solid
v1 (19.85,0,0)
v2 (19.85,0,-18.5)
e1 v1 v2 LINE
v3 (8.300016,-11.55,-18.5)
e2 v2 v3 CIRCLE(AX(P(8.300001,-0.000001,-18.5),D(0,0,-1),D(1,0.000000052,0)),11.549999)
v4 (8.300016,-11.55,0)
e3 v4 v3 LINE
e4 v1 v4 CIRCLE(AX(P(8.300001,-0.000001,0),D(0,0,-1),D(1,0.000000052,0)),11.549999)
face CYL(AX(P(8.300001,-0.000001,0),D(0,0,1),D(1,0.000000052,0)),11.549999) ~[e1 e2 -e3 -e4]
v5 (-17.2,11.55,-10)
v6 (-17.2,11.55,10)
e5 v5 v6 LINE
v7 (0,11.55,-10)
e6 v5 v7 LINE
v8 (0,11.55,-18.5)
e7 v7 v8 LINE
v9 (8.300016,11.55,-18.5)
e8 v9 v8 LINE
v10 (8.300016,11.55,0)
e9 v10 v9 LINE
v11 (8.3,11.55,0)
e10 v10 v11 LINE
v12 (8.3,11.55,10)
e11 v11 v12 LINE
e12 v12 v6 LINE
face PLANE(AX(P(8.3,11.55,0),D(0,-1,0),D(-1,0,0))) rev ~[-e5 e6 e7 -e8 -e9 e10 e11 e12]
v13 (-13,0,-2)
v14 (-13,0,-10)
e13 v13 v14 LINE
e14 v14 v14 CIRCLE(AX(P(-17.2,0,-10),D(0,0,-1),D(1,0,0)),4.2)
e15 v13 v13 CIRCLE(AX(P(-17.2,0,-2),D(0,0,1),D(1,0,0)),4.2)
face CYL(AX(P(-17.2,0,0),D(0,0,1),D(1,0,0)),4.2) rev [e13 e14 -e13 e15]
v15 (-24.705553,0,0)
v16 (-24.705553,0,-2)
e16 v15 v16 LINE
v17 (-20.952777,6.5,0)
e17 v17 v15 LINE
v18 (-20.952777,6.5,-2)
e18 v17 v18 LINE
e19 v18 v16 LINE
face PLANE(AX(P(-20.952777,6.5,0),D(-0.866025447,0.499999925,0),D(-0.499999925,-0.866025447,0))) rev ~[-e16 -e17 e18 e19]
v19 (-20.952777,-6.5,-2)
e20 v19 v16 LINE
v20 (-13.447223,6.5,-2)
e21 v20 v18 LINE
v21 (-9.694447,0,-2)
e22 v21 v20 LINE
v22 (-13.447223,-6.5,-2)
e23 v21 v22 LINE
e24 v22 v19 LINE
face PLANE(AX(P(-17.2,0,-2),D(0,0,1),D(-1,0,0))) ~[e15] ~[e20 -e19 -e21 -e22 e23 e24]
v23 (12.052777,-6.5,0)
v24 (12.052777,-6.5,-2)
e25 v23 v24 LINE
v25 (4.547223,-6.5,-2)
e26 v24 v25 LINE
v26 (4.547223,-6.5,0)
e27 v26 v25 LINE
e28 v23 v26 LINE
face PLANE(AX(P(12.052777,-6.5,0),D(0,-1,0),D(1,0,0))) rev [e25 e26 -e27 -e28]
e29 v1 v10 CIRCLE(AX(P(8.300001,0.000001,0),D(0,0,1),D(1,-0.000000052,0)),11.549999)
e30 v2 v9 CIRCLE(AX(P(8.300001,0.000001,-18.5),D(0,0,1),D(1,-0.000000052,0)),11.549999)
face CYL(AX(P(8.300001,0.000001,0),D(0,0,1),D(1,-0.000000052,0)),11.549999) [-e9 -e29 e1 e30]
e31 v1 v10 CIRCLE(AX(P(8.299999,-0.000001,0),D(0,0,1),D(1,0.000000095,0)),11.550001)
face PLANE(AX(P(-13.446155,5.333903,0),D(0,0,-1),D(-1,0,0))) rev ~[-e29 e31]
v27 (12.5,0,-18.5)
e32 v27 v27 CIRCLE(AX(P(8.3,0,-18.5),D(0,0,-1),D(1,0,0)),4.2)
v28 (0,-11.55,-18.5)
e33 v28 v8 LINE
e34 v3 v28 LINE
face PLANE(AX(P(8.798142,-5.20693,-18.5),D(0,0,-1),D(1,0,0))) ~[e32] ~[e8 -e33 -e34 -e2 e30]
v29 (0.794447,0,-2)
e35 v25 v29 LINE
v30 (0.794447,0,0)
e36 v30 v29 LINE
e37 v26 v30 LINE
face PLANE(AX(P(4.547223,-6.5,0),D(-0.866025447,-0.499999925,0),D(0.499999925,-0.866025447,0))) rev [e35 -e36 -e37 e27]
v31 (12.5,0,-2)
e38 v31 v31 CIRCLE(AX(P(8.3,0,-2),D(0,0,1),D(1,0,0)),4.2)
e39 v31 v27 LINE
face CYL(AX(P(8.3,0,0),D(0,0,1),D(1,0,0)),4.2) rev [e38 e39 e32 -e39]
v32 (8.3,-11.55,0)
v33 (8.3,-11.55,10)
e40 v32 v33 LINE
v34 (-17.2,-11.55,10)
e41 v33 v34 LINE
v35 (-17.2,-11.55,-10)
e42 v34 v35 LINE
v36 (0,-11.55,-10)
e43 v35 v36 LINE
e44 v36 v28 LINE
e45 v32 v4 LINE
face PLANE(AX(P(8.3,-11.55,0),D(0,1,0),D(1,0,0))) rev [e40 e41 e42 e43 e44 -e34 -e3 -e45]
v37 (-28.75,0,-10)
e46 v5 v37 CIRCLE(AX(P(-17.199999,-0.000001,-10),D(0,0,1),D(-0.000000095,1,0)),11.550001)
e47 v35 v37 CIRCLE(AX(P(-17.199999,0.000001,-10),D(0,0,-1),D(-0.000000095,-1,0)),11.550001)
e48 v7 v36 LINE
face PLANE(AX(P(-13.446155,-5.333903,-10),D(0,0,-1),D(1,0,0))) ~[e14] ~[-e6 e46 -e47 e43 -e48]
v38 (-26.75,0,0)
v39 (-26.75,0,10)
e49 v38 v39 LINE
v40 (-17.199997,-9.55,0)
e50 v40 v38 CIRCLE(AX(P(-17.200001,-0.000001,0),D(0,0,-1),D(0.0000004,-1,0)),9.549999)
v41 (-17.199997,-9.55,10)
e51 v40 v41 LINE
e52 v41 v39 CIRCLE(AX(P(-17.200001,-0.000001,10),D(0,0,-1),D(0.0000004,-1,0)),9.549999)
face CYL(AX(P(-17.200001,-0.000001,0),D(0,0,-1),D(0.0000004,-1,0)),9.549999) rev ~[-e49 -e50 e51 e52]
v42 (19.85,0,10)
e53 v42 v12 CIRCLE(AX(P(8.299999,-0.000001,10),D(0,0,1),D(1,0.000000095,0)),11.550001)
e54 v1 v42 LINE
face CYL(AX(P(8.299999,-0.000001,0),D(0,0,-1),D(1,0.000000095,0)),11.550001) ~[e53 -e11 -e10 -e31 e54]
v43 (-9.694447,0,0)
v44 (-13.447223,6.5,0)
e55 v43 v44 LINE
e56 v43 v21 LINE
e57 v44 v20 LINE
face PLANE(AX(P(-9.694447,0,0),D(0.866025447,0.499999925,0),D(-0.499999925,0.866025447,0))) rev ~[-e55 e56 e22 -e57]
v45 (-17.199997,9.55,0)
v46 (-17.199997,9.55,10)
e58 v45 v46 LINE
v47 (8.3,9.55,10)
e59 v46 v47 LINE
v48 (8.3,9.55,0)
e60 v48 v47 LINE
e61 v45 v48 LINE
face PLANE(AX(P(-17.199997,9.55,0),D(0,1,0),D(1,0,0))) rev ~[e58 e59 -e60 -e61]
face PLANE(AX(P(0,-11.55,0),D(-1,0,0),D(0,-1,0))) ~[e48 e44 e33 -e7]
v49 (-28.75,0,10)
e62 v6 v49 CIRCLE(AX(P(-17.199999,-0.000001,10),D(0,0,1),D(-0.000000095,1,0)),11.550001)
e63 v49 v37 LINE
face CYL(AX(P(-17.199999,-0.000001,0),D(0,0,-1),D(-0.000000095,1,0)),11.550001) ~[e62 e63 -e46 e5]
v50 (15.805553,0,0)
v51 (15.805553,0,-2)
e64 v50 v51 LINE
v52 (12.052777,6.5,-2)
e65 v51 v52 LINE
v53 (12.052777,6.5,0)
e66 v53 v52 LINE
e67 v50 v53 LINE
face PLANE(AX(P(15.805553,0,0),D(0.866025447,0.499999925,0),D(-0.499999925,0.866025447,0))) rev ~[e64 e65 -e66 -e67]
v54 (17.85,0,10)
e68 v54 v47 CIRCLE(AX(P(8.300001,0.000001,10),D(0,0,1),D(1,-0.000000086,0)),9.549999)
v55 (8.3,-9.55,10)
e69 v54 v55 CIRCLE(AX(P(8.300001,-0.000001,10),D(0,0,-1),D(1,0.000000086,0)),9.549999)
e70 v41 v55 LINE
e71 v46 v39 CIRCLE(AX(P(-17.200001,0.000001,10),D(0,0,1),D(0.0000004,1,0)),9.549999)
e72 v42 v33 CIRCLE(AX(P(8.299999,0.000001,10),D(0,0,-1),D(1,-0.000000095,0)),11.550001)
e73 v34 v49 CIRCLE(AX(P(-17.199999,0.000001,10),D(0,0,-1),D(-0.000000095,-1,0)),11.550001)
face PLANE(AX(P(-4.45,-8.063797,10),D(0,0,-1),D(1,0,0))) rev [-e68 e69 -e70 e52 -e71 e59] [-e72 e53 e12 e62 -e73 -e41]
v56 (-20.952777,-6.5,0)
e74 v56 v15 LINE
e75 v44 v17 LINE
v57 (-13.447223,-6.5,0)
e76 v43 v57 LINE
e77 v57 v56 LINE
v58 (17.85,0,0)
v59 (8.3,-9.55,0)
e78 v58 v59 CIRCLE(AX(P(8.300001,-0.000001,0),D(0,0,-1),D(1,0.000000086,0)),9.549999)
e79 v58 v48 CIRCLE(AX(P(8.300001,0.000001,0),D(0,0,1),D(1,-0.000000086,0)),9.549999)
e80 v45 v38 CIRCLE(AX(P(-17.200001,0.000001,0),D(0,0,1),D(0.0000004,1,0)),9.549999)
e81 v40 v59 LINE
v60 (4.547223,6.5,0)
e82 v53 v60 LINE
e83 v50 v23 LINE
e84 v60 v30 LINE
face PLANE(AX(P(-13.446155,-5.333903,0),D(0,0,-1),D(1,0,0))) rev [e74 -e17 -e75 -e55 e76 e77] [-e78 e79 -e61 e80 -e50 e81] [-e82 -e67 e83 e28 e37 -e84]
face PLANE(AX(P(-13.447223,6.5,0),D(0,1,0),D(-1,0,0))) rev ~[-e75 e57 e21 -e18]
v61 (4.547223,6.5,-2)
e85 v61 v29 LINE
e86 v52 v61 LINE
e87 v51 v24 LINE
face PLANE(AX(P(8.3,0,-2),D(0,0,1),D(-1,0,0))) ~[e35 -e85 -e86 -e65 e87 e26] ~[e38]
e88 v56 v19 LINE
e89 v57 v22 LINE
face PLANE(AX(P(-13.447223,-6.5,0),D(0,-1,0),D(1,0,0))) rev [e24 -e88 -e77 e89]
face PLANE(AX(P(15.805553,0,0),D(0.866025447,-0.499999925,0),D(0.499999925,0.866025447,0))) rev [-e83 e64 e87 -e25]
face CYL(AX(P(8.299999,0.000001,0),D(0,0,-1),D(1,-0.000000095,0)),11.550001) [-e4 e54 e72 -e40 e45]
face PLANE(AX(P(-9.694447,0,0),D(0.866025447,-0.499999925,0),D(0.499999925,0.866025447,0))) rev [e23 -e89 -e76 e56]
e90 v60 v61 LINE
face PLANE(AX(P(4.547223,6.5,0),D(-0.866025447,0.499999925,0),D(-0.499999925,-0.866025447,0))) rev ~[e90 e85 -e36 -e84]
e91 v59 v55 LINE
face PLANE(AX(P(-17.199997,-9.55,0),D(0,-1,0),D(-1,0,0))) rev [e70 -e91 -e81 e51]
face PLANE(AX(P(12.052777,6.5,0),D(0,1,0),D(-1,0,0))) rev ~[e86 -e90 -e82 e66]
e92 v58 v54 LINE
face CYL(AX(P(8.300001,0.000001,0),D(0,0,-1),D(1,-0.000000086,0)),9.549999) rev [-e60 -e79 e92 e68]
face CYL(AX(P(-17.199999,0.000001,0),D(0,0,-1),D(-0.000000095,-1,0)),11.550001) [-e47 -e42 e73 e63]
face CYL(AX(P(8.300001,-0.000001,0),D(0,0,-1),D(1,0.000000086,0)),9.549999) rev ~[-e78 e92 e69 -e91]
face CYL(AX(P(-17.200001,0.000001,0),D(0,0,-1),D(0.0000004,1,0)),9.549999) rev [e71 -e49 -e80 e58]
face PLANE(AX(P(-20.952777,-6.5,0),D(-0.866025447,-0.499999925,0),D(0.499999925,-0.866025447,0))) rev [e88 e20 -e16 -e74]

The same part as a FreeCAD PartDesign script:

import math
import FreeCAD as App
import Part
import Sketcher
Q = App.Units.Quantity

doc = App.newDocument("Part")
body = doc.addObject("PartDesign::Body", "Body")

sketch1 = doc.addObject("Sketcher::SketchObject", "Sketch")
body.addObject(sketch1)
sketch1.AttachmentSupport = (doc.XY_Plane, [""])
sketch1.MapMode = "FlatFace"
sketch1.addGeometry([
    Part.ArcOfCircle(Part.Circle(App.Vector(8.3, 0, 0), App.Vector(0, 0, 1), 4.2), math.radians(0), math.radians(180)),
    Part.LineSegment(App.Vector(12.5, 0, 0), App.Vector(19.85, 0, 0)),
    Part.ArcOfCircle(Part.Circle(App.Vector(8.300001, 0.000001, 0), App.Vector(0, 0, 1), 11.549999), math.radians(-0.000003), math.radians(89.999924)),
    Part.LineSegment(App.Vector(8.300016, 11.55, 0), App.Vector(0, 11.55, 0)),
    Part.LineSegment(App.Vector(0, 11.55, 0), App.Vector(0, 0, 0)),
    Part.LineSegment(App.Vector(0, 0, 0), App.Vector(4.1, 0, 0)),
], False)
sketch1.addConstraint([
    Sketcher.Constraint("Coincident", 0, 1, 1, 1),
    Sketcher.Constraint("Coincident", 1, 2, 2, 1),
    Sketcher.Constraint("Tangent", 2, 2, 3, 1),
    Sketcher.Constraint("Coincident", 3, 2, 4, 1),
    Sketcher.Constraint("Coincident", 4, 2, 5, 1),
    Sketcher.Constraint("Coincident", 5, 2, 0, 2),
    Sketcher.Constraint("Horizontal", 1),
    Sketcher.Constraint("Horizontal", 3),
    Sketcher.Constraint("Vertical", 4),
    Sketcher.Constraint("Horizontal", 5),
    Sketcher.Constraint("Coincident", 4, 2, -1, 1),
    Sketcher.Constraint("Coincident", 2, 3, 0, 3),
    Sketcher.Constraint("PointOnObject", 0, 3, -1),
    Sketcher.Constraint("PointOnObject", 0, 1, -1),
    Sketcher.Constraint("Radius", 0, Q("4.2 mm")),
    Sketcher.Constraint("Radius", 2, Q("11.549999 mm")),
    Sketcher.Constraint("DistanceX", 5, 1, 5, 2, Q("4.1 mm")),
])
pad1 = doc.addObject("PartDesign::Pad", "Pad")
body.addObject(pad1)
pad1.Profile = sketch1
pad1.Length = 18.5
pad1.Reversed = True

sketch2 = doc.addObject("Sketcher::SketchObject", "Sketch001")
body.addObject(sketch2)
sketch2.AttachmentSupport = (doc.XY_Plane, [""])
sketch2.MapMode = "FlatFace"
sketch2.addGeometry([
    Part.ArcOfCircle(Part.Circle(App.Vector(-17.2, 0, 0), App.Vector(0, 0, 1), 4.2), math.radians(0), math.radians(180)),
    Part.LineSegment(App.Vector(-13, 0, 0), App.Vector(0, 0, 0)),
    Part.LineSegment(App.Vector(0, 0, 0), App.Vector(0, 11.55, 0)),
    Part.LineSegment(App.Vector(0, 11.55, 0), App.Vector(-17.2, 11.55, 0)),
    Part.ArcOfCircle(Part.Circle(App.Vector(-17.199999, -0.000001, 0), App.Vector(0, 0, 1), 11.550001), math.radians(90.000005), math.radians(179.999995)),
    Part.LineSegment(App.Vector(-28.75, 0, 0), App.Vector(-21.4, 0, 0)),
], False)
sketch2.addConstraint([
    Sketcher.Constraint("Coincident", 0, 1, 1, 1),
    Sketcher.Constraint("Coincident", 1, 2, 2, 1),
    Sketcher.Constraint("Coincident", 2, 2, 3, 1),
    Sketcher.Constraint("Tangent", 3, 2, 4, 1),
    Sketcher.Constraint("Coincident", 4, 2, 5, 1),
    Sketcher.Constraint("Coincident", 5, 2, 0, 2),
    Sketcher.Constraint("Horizontal", 1),
    Sketcher.Constraint("Vertical", 2),
    Sketcher.Constraint("Horizontal", 3),
    Sketcher.Constraint("Horizontal", 5),
    Sketcher.Constraint("Coincident", 1, 2, -1, 1),
    Sketcher.Constraint("Coincident", 4, 3, 0, 3),
    Sketcher.Constraint("PointOnObject", 0, 3, -1),
    Sketcher.Constraint("PointOnObject", 4, 2, -1),
    Sketcher.Constraint("Radius", 0, Q("4.2 mm")),
    Sketcher.Constraint("DistanceX", 1, 1, 1, 2, Q("13 mm")),
    Sketcher.Constraint("Radius", 4, Q("11.550001 mm")),
])
pad2 = doc.addObject("PartDesign::Pad", "Pad001")
body.addObject(pad2)
pad2.Profile = sketch2
pad2.Length = 10
pad2.Reversed = True

sketch3 = doc.addObject("Sketcher::SketchObject", "Sketch002")
body.addObject(sketch3)
sketch3.AttachmentSupport = (doc.XY_Plane, [""])
sketch3.MapMode = "FlatFace"
sketch3.addGeometry([
    Part.LineSegment(App.Vector(8.3, 11.55, 0), App.Vector(-17.2, 11.55, 0)),
    Part.ArcOfCircle(Part.Circle(App.Vector(-17.199999, -0.000001, 0), App.Vector(0, 0, 1), 11.550001), math.radians(90.000005), math.radians(179.999995)),
    Part.LineSegment(App.Vector(-28.75, 0, 0), App.Vector(-26.75, 0, 0)),
    Part.ArcOfCircle(Part.Circle(App.Vector(-17.200001, 0.000001, 0), App.Vector(0, 0, 1), 9.549999), math.radians(89.999977), math.radians(180.000005)),
    Part.LineSegment(App.Vector(-17.199997, 9.55, 0), App.Vector(8.3, 9.55, 0)),
    Part.ArcOfCircle(Part.Circle(App.Vector(8.300001, 0.000001, 0), App.Vector(0, 0, 1), 9.549999), math.radians(-0.000005), math.radians(90.000005)),
    Part.LineSegment(App.Vector(17.85, 0, 0), App.Vector(19.85, 0, 0)),
    Part.ArcOfCircle(Part.Circle(App.Vector(8.299999, -0.000001, 0), App.Vector(0, 0, 1), 11.550001), math.radians(0.000005), math.radians(89.999995)),
], False)
sketch3.addConstraint([
    Sketcher.Constraint("Tangent", 0, 2, 1, 1),
    Sketcher.Constraint("Coincident", 1, 2, 2, 1),
    Sketcher.Constraint("Coincident", 2, 2, 3, 2),
    Sketcher.Constraint("Tangent", 3, 1, 4, 1),
    Sketcher.Constraint("Tangent", 4, 2, 5, 2),
    Sketcher.Constraint("Coincident", 5, 1, 6, 1),
    Sketcher.Constraint("Coincident", 6, 2, 7, 1),
    Sketcher.Constraint("Tangent", 7, 2, 0, 1),
    Sketcher.Constraint("Horizontal", 0),
    Sketcher.Constraint("Horizontal", 2),
    Sketcher.Constraint("Horizontal", 4),
    Sketcher.Constraint("Horizontal", 6),
    Sketcher.Constraint("Coincident", 3, 3, 1, 3),
    Sketcher.Constraint("Coincident", 7, 3, 5, 3),
    Sketcher.Constraint("Equal", 3, 5),
    Sketcher.Constraint("PointOnObject", 1, 3, -1),
    Sketcher.Constraint("PointOnObject", 1, 2, -1),
    Sketcher.Constraint("PointOnObject", 5, 1, -1),
    Sketcher.Constraint("DistanceX", 2, 1, 2, 2, Q("2 mm")),
    Sketcher.Constraint("Radius", 1, Q("11.550001 mm")),
    Sketcher.Constraint("DistanceX", 0, 2, 0, 1, Q("25.5 mm")),
    Sketcher.Constraint("DistanceX", 1, 3, -1, 1, Q("17.199999 mm")),
])
pad3 = doc.addObject("PartDesign::Pad", "Pad002")
body.addObject(pad3)
pad3.Profile = sketch3
pad3.Length = 10

sketch4 = doc.addObject("Sketcher::SketchObject", "Sketch003")
body.addObject(sketch4)
sketch4.AttachmentSupport = (doc.XY_Plane, [""])
sketch4.MapMode = "FlatFace"
sketch4.addGeometry([
    Part.LineSegment(App.Vector(-9.694447, 0, 0), App.Vector(-13.447223, 6.5, 0)),
    Part.LineSegment(App.Vector(-13.447223, 6.5, 0), App.Vector(-20.952777, 6.5, 0)),
    Part.LineSegment(App.Vector(-20.952777, 6.5, 0), App.Vector(-24.705553, 0, 0)),
    Part.LineSegment(App.Vector(-24.705553, 0, 0), App.Vector(-20.952777, -6.5, 0)),
    Part.LineSegment(App.Vector(-20.952777, -6.5, 0), App.Vector(-13.447223, -6.5, 0)),
    Part.LineSegment(App.Vector(-13.447223, -6.5, 0), App.Vector(-9.694447, 0, 0)),
    Part.LineSegment(App.Vector(15.805553, 0, 0), App.Vector(12.052777, 6.5, 0)),
    Part.LineSegment(App.Vector(12.052777, 6.5, 0), App.Vector(4.547223, 6.5, 0)),
    Part.LineSegment(App.Vector(4.547223, 6.5, 0), App.Vector(0.794447, 0, 0)),
    Part.LineSegment(App.Vector(0.794447, 0, 0), App.Vector(4.547223, -6.5, 0)),
    Part.LineSegment(App.Vector(4.547223, -6.5, 0), App.Vector(12.052777, -6.5, 0)),
    Part.LineSegment(App.Vector(12.052777, -6.5, 0), App.Vector(15.805553, 0, 0)),
], False)
sketch4.addConstraint([
    Sketcher.Constraint("Coincident", 0, 2, 1, 1),
    Sketcher.Constraint("Coincident", 1, 2, 2, 1),
    Sketcher.Constraint("Coincident", 2, 2, 3, 1),
    Sketcher.Constraint("Coincident", 3, 2, 4, 1),
    Sketcher.Constraint("Coincident", 4, 2, 5, 1),
    Sketcher.Constraint("Coincident", 5, 2, 0, 1),
    Sketcher.Constraint("Coincident", 6, 2, 7, 1),
    Sketcher.Constraint("Coincident", 7, 2, 8, 1),
    Sketcher.Constraint("Coincident", 8, 2, 9, 1),
    Sketcher.Constraint("Coincident", 9, 2, 10, 1),
    Sketcher.Constraint("Coincident", 10, 2, 11, 1),
    Sketcher.Constraint("Coincident", 11, 2, 6, 1),
    Sketcher.Constraint("Horizontal", 1),
    Sketcher.Constraint("Horizontal", 4),
    Sketcher.Constraint("Horizontal", 7),
    Sketcher.Constraint("Horizontal", 10),
    Sketcher.Constraint("Symmetric", 1, 2, 3, 2, -1),
    Sketcher.Constraint("Symmetric", 7, 2, 9, 2, -1),
    Sketcher.Constraint("PointOnObject", 2, 2, -1),
    Sketcher.Constraint("PointOnObject", 5, 2, -1),
    Sketcher.Constraint("PointOnObject", 8, 2, -1),
    Sketcher.Constraint("PointOnObject", 11, 2, -1),
    Sketcher.Constraint("Parallel", 0, 3),
    Sketcher.Constraint("Parallel", 2, 5),
    Sketcher.Constraint("Parallel", 3, 6),
    Sketcher.Constraint("Parallel", 5, 8),
    Sketcher.Constraint("Parallel", 8, 11),
    Sketcher.Constraint("Horizontal", 1, 2, 6, 2),
    Sketcher.Constraint("Equal", 4, 7),
    Sketcher.Constraint("Angle", 0, Q("119.999995 deg")),
    Sketcher.Constraint("DistanceY", 3, 2, 1, 2, Q("13 mm")),
    Sketcher.Constraint("DistanceX", 0, 2, 6, 2, Q("25.5 mm")),
    Sketcher.Constraint("DistanceX", 1, 2, 1, 1, Q("7.505554 mm")),
    Sketcher.Constraint("DistanceX", 0, 2, -1, 1, Q("13.447223 mm")),
])
pocket1 = doc.addObject("PartDesign::Pocket", "Pocket")
body.addObject(pocket1)
pocket1.Profile = sketch4
pocket1.Length = 2
doc.recompute()

mirrored = doc.addObject("PartDesign::Mirrored", "Mirrored")
body.addObject(mirrored)
mirrored.Originals = [pad1, pad2, pad3, pocket1]
mirrored.MirrorPlane = (doc.XZ_Plane, [""])
body.Tip = mirrored

doc.recompute()
